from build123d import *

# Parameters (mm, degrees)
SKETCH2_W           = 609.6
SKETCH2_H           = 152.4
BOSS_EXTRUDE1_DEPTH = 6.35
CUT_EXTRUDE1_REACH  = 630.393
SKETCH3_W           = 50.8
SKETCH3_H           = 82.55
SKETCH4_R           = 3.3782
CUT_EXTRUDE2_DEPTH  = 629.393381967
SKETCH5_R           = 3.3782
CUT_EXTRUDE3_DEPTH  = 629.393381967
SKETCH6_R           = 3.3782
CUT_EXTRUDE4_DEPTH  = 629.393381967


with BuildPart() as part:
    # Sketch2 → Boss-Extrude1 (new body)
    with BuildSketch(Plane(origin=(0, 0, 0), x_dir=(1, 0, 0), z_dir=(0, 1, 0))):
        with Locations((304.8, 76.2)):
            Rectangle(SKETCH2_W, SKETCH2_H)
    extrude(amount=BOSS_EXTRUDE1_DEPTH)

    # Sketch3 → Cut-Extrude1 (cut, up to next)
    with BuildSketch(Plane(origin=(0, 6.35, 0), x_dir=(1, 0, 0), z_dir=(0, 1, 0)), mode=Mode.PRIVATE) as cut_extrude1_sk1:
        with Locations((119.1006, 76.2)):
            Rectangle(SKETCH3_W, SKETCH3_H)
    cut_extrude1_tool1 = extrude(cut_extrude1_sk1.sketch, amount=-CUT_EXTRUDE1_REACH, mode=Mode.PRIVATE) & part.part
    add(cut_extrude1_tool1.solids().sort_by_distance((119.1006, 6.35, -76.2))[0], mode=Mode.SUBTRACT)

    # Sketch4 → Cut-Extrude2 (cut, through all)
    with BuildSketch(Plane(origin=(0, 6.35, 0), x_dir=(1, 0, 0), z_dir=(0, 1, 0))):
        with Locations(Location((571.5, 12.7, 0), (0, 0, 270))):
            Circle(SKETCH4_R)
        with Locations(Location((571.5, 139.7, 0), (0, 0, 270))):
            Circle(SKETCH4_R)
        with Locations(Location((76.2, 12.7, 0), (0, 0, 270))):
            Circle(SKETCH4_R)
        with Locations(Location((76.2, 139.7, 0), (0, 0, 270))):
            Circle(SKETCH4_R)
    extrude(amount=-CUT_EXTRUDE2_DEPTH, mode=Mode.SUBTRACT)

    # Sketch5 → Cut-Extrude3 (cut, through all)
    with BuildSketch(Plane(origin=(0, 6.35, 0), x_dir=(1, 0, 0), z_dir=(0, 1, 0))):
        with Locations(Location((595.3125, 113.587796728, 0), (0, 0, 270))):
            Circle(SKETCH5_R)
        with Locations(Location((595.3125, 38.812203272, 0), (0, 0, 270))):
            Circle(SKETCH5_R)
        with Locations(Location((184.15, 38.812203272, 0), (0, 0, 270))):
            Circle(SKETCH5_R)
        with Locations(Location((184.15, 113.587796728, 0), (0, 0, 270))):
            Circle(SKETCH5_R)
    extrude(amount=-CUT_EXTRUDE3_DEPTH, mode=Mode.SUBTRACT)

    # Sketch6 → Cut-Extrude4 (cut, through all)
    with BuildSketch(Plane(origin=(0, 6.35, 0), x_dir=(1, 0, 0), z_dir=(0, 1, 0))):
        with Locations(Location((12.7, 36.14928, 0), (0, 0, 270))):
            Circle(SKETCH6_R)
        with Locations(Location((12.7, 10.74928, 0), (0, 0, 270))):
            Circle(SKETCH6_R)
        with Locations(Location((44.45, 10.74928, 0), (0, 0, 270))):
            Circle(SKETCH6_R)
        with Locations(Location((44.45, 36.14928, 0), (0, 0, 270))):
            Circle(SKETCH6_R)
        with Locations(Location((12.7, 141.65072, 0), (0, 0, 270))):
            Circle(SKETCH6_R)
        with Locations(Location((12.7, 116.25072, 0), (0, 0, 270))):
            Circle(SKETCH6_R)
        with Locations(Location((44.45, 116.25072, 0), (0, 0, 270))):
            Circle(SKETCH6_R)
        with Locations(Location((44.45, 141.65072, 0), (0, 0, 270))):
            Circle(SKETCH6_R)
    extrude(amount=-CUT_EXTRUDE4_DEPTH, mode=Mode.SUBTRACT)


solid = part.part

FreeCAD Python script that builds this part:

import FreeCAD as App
import Part
import Sketcher

V = App.Vector
Q = App.Units.Quantity


def add_polygon(sketch, points):
    """Adds a closed chain of lines whose ends are joined by coincident constraints."""
    first, n = sketch.GeometryCount, len(points)
    for a, b in zip(points, points[1:] + points[:1]):
        sketch.addGeometry(Part.LineSegment(App.Vector(*a, 0), App.Vector(*b, 0)), False)
    for i in range(n):
        sketch.addConstraint(Sketcher.Constraint("Coincident", first + i, 2, first + (i + 1) % n, 1))

doc = App.newDocument("Part")
body = doc.addObject("PartDesign::Body", "Body")

sketch1 = body.newObject("Sketcher::SketchObject", "Sketch")
sketch1.AttachmentSupport = (doc.getObject("XZ_Plane"), [""])
sketch1.MapMode = "FlatFace"
add_polygon(sketch1, [(0, -152), (0, 0), (610, 0), (610, -152)])
sketch1.addConstraint(Sketcher.Constraint("Vertical", 0))
sketch1.addConstraint(Sketcher.Constraint("Horizontal", 1))
sketch1.addConstraint(Sketcher.Constraint("Vertical", 2))
sketch1.addConstraint(Sketcher.Constraint("Horizontal", 3))
sketch1.addConstraint(Sketcher.Constraint("Coincident", 0, 2, -1, 1))
sketch1.addConstraint(Sketcher.Constraint("DistanceX", 1, 1, 1, 2, Q("24 in")))
sketch1.addConstraint(Sketcher.Constraint("DistanceY", 0, 1, 0, 2, Q("6 in")))
pad1 = body.newObject("PartDesign::Pad", "Pad")
pad1.Profile = sketch1
pad1.Length = Q("0.25 in")
pad1.Reversed = True

sketch2 = body.newObject("Sketcher::SketchObject", "Sketch001")
sketch2.AttachmentSupport = (doc.getObject("XZ_Plane"), [""])
sketch2.MapMode = "FlatFace"
sketch2.AttachmentOffset = App.Placement(V(0, 0, -0.25 * 25.4), App.Rotation())
add_polygon(sketch2, [(94, -117), (94, -35), (145, -35), (145, -117)])
sketch2.addConstraint(Sketcher.Constraint("Vertical", 0))
sketch2.addConstraint(Sketcher.Constraint("Horizontal", 1))
sketch2.addConstraint(Sketcher.Constraint("Vertical", 2))
sketch2.addConstraint(Sketcher.Constraint("Horizontal", 3))
sketch2.addConstraint(Sketcher.Constraint("DistanceX", 1, 1, 1, 2, Q("2 in")))
sketch2.addConstraint(Sketcher.Constraint("DistanceY", 0, 1, 0, 2, Q("3.25 in")))
sketch2.addConstraint(Sketcher.Constraint("DistanceX", -1, 1, 0, 2, Q("3.689 in")))
sketch2.addConstraint(Sketcher.Constraint("DistanceY", 0, 2, -1, 1, Q("1.375 in")))
pocket1 = body.newObject("PartDesign::Pocket", "Pocket")
pocket1.Profile = sketch2
pocket1.Type = "UpToFirst"
pocket1.Reversed = True

sketch3 = body.newObject("Sketcher::SketchObject", "Sketch002")
sketch3.AttachmentSupport = (doc.getObject("XZ_Plane"), [""])
sketch3.MapMode = "FlatFace"
sketch3.AttachmentOffset = App.Placement(V(0, 0, -0.25 * 25.4), App.Rotation())
sketch3.addGeometry(Part.Circle(V(571.5, -12.7, 0), V(0, 0, 1), 3.4), False)
sketch3.addGeometry(Part.Circle(V(571.5, -139.7, 0), V(0, 0, 1), 3.4), False)
sketch3.addGeometry(Part.Circle(V(76.2, -12.7, 0), V(0, 0, 1), 3.4), False)
sketch3.addGeometry(Part.Circle(V(76.2, -139.7, 0), V(0, 0, 1), 3.4), False)
sketch3.addConstraint(Sketcher.Constraint("Equal", 0, 1))
sketch3.addConstraint(Sketcher.Constraint("Equal", 1, 2))
sketch3.addConstraint(Sketcher.Constraint("Equal", 2, 3))
sketch3.addConstraint(Sketcher.Constraint("Horizontal", 0, 3, 2, 3))
sketch3.addConstraint(Sketcher.Constraint("Horizontal", 1, 3, 3, 3))
sketch3.addConstraint(Sketcher.Constraint("Vertical", 0, 3, 1, 3))
sketch3.addConstraint(Sketcher.Constraint("Vertical", 2, 3, 3, 3))
sketch3.addConstraint(Sketcher.Constraint("Diameter", 0, Q("0.266 in")))
sketch3.addConstraint(Sketcher.Constraint("DistanceX", -1, 1, 2, 3, Q("3 in")))
sketch3.addConstraint(Sketcher.Constraint("DistanceY", 1, 3, 0, 3, Q("5 in")))
sketch3.addConstraint(Sketcher.Constraint("DistanceX", -1, 1, 0, 3, Q("22.5 in")))
sketch3.addConstraint(Sketcher.Constraint("DistanceY", 0, 3, -1, 1, Q("0.5 in")))
pocket2 = body.newObject("PartDesign::Pocket", "Pocket001")
pocket2.Profile = sketch3
pocket2.Type = "ThroughAll"
pocket2.Reversed = True

sketch4 = body.newObject("Sketcher::SketchObject", "Sketch003")
sketch4.AttachmentSupport = (doc.getObject("XZ_Plane"), [""])
sketch4.MapMode = "FlatFace"
sketch4.AttachmentOffset = App.Placement(V(0, 0, -0.25 * 25.4), App.Rotation())
sketch4.addGeometry(Part.Circle(V(595.3, -113.6, 0), V(0, 0, 1), 3.4), False)
sketch4.addGeometry(Part.Circle(V(595.3, -38.8, 0), V(0, 0, 1), 3.4), False)
sketch4.addGeometry(Part.Circle(V(184.2, -38.8, 0), V(0, 0, 1), 3.4), False)
sketch4.addGeometry(Part.Circle(V(184.2, -113.6, 0), V(0, 0, 1), 3.4), False)
sketch4.addConstraint(Sketcher.Constraint("Equal", 0, 1))
sketch4.addConstraint(Sketcher.Constraint("Equal", 1, 2))
sketch4.addConstraint(Sketcher.Constraint("Equal", 2, 3))
sketch4.addConstraint(Sketcher.Constraint("Horizontal", 1, 3, 2, 3))
sketch4.addConstraint(Sketcher.Constraint("Horizontal", 0, 3, 3, 3))
sketch4.addConstraint(Sketcher.Constraint("Vertical", 0, 3, 1, 3))
sketch4.addConstraint(Sketcher.Constraint("Vertical", 2, 3, 3, 3))
sketch4.addConstraint(Sketcher.Constraint("Diameter", 0, Q("0.266 in")))
sketch4.addConstraint(Sketcher.Constraint("DistanceX", -1, 1, 2, 3, Q("7.25 in")))
sketch4.addConstraint(Sketcher.Constraint("DistanceX", -1, 1, 0, 3, Q("23.4375 in")))
sketch4.addConstraint(Sketcher.Constraint("DistanceY", 0, 3, -1, 1, Q("113.587797 mm")))
sketch4.addConstraint(Sketcher.Constraint("DistanceY", 1, 3, -1, 1, Q("38.812203 mm")))
pocket3 = body.newObject("PartDesign::Pocket", "Pocket002")
pocket3.Profile = sketch4
pocket3.Type = "ThroughAll"
pocket3.Reversed = True

sketch5 = body.newObject("Sketcher::SketchObject", "Sketch004")
sketch5.AttachmentSupport = (doc.getObject("XZ_Plane"), [""])
sketch5.MapMode = "FlatFace"
sketch5.AttachmentOffset = App.Placement(V(0, 0, -0.25 * 25.4), App.Rotation())
sketch5.addGeometry(Part.Circle(V(12.7, -36.1, 0), V(0, 0, 1), 3.4), False)
sketch5.addGeometry(Part.Circle(V(12.7, -10.7, 0), V(0, 0, 1), 3.4), False)
sketch5.addGeometry(Part.Circle(V(44.5, -10.7, 0), V(0, 0, 1), 3.4), False)
sketch5.addGeometry(Part.Circle(V(44.5, -36.1, 0), V(0, 0, 1), 3.4), False)
sketch5.addGeometry(Part.Circle(V(12.7, -141.7, 0), V(0, 0, 1), 3.4), False)
sketch5.addGeometry(Part.Circle(V(12.7, -116.3, 0), V(0, 0, 1), 3.4), False)
sketch5.addGeometry(Part.Circle(V(44.5, -116.3, 0), V(0, 0, 1), 3.4), False)
sketch5.addGeometry(Part.Circle(V(44.5, -141.7, 0), V(0, 0, 1), 3.4), False)
sketch5.addConstraint(Sketcher.Constraint("Equal", 0, 1))
sketch5.addConstraint(Sketcher.Constraint("Equal", 1, 2))
sketch5.addConstraint(Sketcher.Constraint("Equal", 2, 3))
sketch5.addConstraint(Sketcher.Constraint("Equal", 3, 4))
sketch5.addConstraint(Sketcher.Constraint("Equal", 4, 5))
sketch5.addConstraint(Sketcher.Constraint("Equal", 5, 6))
sketch5.addConstraint(Sketcher.Constraint("Equal", 6, 7))
sketch5.addConstraint(Sketcher.Constraint("Horizontal", 1, 3, 2, 3))
sketch5.addConstraint(Sketcher.Constraint("Horizontal", 0, 3, 3, 3))
sketch5.addConstraint(Sketcher.Constraint("Horizontal", 5, 3, 6, 3))
sketch5.addConstraint(Sketcher.Constraint("Horizontal", 4, 3, 7, 3))
sketch5.addConstraint(Sketcher.Constraint("Vertical", 0, 3, 1, 3))
sketch5.addConstraint(Sketcher.Constraint("Vertical", 2, 3, 3, 3))
sketch5.addConstraint(Sketcher.Constraint("Vertical", 1, 3, 4, 3))
sketch5.addConstraint(Sketcher.Constraint("Vertical", 4, 3, 5, 3))
sketch5.addConstraint(Sketcher.Constraint("Vertical", 3, 3, 6, 3))
sketch5.addConstraint(Sketcher.Constraint("Vertical", 6, 3, 7, 3))
sketch5.addConstraint(Sketcher.Constraint("Diameter", 0, Q("0.266 in")))
sketch5.addConstraint(Sketcher.Constraint("DistanceY", 0, 3, 1, 3, Q("1 in")))
sketch5.addConstraint(Sketcher.Constraint("DistanceY", 4, 3, 5, 3, Q("1 in")))
sketch5.addConstraint(Sketcher.Constraint("DistanceX", -1, 1, 0, 3, Q("0.5 in")))
sketch5.addConstraint(Sketcher.Constraint("DistanceX", -1, 1, 2, 3, Q("1.75 in")))
sketch5.addConstraint(Sketcher.Constraint("DistanceY", 0, 3, -1, 1, Q("1.4232 in")))
sketch5.addConstraint(Sketcher.Constraint("DistanceY", 4, 3, -1, 1, Q("5.5768 in")))
pocket4 = body.newObject("PartDesign::Pocket", "Pocket003")
pocket4.Profile = sketch5
pocket4.Type = "ThroughAll"
pocket4.Reversed = True

doc.recompute()
